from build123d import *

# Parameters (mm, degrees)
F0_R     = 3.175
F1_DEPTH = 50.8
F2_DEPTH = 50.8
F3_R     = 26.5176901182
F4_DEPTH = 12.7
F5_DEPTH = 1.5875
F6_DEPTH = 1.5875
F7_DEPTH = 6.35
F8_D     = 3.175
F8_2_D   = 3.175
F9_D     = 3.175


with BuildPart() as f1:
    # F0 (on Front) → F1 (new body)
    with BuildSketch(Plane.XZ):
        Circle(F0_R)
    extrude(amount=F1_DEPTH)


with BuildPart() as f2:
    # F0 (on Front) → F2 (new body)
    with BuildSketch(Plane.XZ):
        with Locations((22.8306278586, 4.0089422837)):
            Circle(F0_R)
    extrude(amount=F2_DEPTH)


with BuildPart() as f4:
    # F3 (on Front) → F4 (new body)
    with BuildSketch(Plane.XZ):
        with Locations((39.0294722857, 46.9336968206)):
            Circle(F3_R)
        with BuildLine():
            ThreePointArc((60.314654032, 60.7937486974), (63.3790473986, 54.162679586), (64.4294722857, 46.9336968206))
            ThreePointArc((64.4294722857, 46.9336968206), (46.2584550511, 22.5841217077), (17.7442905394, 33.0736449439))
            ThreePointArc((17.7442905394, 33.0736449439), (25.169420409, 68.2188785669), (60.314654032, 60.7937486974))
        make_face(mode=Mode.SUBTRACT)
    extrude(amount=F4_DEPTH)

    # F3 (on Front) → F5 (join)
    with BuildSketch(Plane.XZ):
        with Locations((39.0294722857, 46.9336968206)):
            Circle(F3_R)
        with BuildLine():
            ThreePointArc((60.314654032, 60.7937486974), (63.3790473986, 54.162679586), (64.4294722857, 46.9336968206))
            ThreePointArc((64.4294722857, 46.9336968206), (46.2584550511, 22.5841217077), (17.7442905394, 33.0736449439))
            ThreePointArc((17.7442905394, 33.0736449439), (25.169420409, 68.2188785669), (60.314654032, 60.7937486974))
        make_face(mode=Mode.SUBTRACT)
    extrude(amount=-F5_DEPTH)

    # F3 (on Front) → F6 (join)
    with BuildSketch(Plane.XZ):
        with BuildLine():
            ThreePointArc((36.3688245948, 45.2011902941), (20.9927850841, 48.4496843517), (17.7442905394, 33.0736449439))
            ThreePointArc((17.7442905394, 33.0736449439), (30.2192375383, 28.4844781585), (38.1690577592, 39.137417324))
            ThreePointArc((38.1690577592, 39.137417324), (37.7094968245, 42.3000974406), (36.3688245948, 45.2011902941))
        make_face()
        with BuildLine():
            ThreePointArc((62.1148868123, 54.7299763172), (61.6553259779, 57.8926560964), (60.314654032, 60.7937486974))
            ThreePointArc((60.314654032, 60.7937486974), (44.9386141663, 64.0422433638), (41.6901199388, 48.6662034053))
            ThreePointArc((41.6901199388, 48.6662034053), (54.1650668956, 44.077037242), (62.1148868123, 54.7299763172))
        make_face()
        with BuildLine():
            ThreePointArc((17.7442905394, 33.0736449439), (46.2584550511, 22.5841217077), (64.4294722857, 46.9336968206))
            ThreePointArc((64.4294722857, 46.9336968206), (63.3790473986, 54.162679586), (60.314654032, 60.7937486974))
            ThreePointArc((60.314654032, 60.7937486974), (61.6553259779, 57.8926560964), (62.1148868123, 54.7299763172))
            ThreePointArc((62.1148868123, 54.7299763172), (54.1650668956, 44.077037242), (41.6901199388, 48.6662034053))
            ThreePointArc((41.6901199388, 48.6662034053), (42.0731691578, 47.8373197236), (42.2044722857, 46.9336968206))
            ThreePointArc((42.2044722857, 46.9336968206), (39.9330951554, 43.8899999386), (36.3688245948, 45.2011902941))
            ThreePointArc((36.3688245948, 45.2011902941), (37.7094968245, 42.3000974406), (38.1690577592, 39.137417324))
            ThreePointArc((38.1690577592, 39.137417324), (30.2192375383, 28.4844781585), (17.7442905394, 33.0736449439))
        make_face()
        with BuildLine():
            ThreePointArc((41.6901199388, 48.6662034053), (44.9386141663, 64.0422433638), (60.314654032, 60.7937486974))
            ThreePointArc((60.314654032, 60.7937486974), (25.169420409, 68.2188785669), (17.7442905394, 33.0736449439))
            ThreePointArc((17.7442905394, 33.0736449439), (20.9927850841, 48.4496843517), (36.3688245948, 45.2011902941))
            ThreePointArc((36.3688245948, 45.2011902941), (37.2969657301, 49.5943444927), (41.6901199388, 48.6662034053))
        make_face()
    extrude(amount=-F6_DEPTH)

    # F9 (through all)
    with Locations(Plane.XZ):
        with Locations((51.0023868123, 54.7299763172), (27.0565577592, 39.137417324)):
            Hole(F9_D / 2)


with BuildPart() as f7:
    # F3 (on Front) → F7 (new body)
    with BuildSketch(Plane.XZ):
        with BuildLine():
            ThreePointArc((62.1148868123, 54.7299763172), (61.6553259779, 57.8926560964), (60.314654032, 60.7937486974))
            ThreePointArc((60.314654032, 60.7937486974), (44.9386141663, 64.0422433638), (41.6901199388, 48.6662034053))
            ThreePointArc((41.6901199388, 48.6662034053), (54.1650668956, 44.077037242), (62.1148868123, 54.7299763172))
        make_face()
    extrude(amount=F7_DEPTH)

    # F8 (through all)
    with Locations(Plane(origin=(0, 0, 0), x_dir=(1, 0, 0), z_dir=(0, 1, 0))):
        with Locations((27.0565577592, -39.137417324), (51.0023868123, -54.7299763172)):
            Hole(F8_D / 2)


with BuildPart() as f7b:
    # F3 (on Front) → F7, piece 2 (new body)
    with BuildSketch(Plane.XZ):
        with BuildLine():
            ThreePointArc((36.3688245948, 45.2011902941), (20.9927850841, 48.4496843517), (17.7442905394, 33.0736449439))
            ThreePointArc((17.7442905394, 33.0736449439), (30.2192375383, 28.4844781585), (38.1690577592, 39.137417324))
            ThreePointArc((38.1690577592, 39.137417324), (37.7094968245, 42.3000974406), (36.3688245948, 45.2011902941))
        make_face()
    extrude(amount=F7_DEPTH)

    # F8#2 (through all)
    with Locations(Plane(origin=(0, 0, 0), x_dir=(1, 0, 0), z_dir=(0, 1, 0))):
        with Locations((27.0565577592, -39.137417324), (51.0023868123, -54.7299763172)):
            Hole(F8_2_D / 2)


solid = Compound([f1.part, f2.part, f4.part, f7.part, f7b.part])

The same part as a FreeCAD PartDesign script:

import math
import FreeCAD as App
import Part
import Sketcher

V = App.Vector
Q = App.Units.Quantity

doc = App.newDocument("Part")
body = doc.addObject("PartDesign::Body", "Body")

# Sketch on XZ plane
sketch1 = doc.addObject("Sketcher::SketchObject", "Sketch")
body.addObject(sketch1)
sketch1.AttachmentSupport = (doc.XZ_Plane, [""])
sketch1.MapMode = "FlatFace"
sketch1.addGeometry(Part.Circle(V(0, 0, 0), V(0, 0, 1), 3.2), False)
sketch1.addConstraint(Sketcher.Constraint("Coincident", 0, 3, -1, 1))
sketch1.addConstraint(Sketcher.Constraint("Diameter", 0, Q("0.25 in")))
pad1 = doc.addObject("PartDesign::Pad", "Pad")
body.addObject(pad1)
pad1.Profile = sketch1
pad1.Length = Q("2 in")
body2 = doc.addObject("PartDesign::Body", "Body001")

# Sketch on XZ plane
sketch2 = doc.addObject("Sketcher::SketchObject", "Sketch001")
body2.addObject(sketch2)
sketch2.AttachmentSupport = (doc.getObject("XZ_Plane001"), [""])
sketch2.MapMode = "FlatFace"
sketch2.addGeometry(Part.Circle(V(22.8, 4, 0), V(0, 0, 1), 3.2), False)
sketch2.addConstraint(Sketcher.Constraint("Diameter", 0, Q("0.25 in")))
sketch2.addConstraint(Sketcher.Constraint("DistanceX", -1, 1, 0, 3, Q("22.830628 mm")))
sketch2.addConstraint(Sketcher.Constraint("DistanceY", -1, 1, 0, 3, Q("4.008942 mm")))
pad2 = doc.addObject("PartDesign::Pad", "Pad001")
body2.addObject(pad2)
pad2.Profile = sketch2
pad2.Length = Q("2 in")
body3 = doc.addObject("PartDesign::Body", "Body002")

# Sketch on XZ plane
sketch3 = doc.addObject("Sketcher::SketchObject", "Sketch002")
body3.addObject(sketch3)
sketch3.AttachmentSupport = (doc.getObject("XZ_Plane002"), [""])
sketch3.MapMode = "FlatFace"
sketch3.addGeometry(Part.Circle(V(39, 47, 0), V(0, 0, 1), 27), False)
sketch3.addGeometry(Part.ArcOfCircle(Part.Circle(V(39, 47, 0), V(0, 0, 1), 25), math.radians(33), math.radians(213)), False)
sketch3.addGeometry(Part.ArcOfCircle(Part.Circle(V(39, 47, 0), V(0, 0, 1), 25), math.radians(0), math.radians(33)), False)
sketch3.addGeometry(Part.ArcOfCircle(Part.Circle(V(39, 47, 0), V(0, 0, 1), 25), math.radians(-147), math.radians(0)), False)
sketch3.addConstraint(Sketcher.Constraint("Tangent", 1, 1, 2, 2))
sketch3.addConstraint(Sketcher.Constraint("Tangent", 2, 1, 3, 2))
sketch3.addConstraint(Sketcher.Constraint("Tangent", 3, 1, 1, 2))
sketch3.addConstraint(Sketcher.Constraint("Coincident", 1, 3, 0, 3))
sketch3.addConstraint(Sketcher.Constraint("Horizontal", 3, 3, 2, 1))
sketch3.addConstraint(Sketcher.Constraint("Radius", 1, Q("1 in")))
sketch3.addConstraint(Sketcher.Constraint("Diameter", 0, Q("53.03538 mm")))
sketch3.addConstraint(Sketcher.Constraint("DistanceY", -1, 1, 1, 1, Q("60.793749 mm")))
sketch3.addConstraint(Sketcher.Constraint("DistanceX", -1, 1, 3, 1, Q("17.744291 mm")))
sketch3.addConstraint(Sketcher.Constraint("DistanceX", 0, 3, 1, 1, Q("21.285182 mm")))
sketch3.addConstraint(Sketcher.Constraint("DistanceX", 3, 1, 0, 3, Q("21.285182 mm")))
pad3 = doc.addObject("PartDesign::Pad", "Pad002")
body3.addObject(pad3)
pad3.Profile = sketch3
pad3.Length = Q("0.5 in")

# Sketch on XZ plane
sketch4 = doc.addObject("Sketcher::SketchObject", "Sketch003")
body3.addObject(sketch4)
sketch4.AttachmentSupport = (doc.getObject("XZ_Plane002"), [""])
sketch4.MapMode = "FlatFace"
sketch4.addGeometry(Part.Circle(V(39, 47, 0), V(0, 0, 1), 27), False)
sketch4.addGeometry(Part.ArcOfCircle(Part.Circle(V(39, 47, 0), V(0, 0, 1), 25), math.radians(33), math.radians(213)), False)
sketch4.addGeometry(Part.ArcOfCircle(Part.Circle(V(39, 47, 0), V(0, 0, 1), 25), math.radians(0), math.radians(33)), False)
sketch4.addGeometry(Part.ArcOfCircle(Part.Circle(V(39, 47, 0), V(0, 0, 1), 25), math.radians(-147), math.radians(0)), False)
sketch4.addConstraint(Sketcher.Constraint("Tangent", 1, 1, 2, 2))
sketch4.addConstraint(Sketcher.Constraint("Tangent", 2, 1, 3, 2))
sketch4.addConstraint(Sketcher.Constraint("Tangent", 3, 1, 1, 2))
sketch4.addConstraint(Sketcher.Constraint("Coincident", 1, 3, 0, 3))
sketch4.addConstraint(Sketcher.Constraint("Horizontal", 3, 3, 2, 1))
sketch4.addConstraint(Sketcher.Constraint("Radius", 1, Q("1 in")))
sketch4.addConstraint(Sketcher.Constraint("Diameter", 0, Q("53.03538 mm")))
sketch4.addConstraint(Sketcher.Constraint("DistanceY", -1, 1, 1, 1, Q("60.793749 mm")))
sketch4.addConstraint(Sketcher.Constraint("DistanceX", -1, 1, 3, 1, Q("17.744291 mm")))
sketch4.addConstraint(Sketcher.Constraint("DistanceX", 0, 3, 1, 1, Q("21.285182 mm")))
sketch4.addConstraint(Sketcher.Constraint("DistanceX", 3, 1, 0, 3, Q("21.285182 mm")))
pad4 = doc.addObject("PartDesign::Pad", "Pad003")
body3.addObject(pad4)
pad4.Profile = sketch4
pad4.Length = Q("0.0625 in")
pad4.Reversed = True

# Sketch on XZ plane
sketch5 = doc.addObject("Sketcher::SketchObject", "Sketch004")
body3.addObject(sketch5)
sketch5.AttachmentSupport = (doc.getObject("XZ_Plane002"), [""])
sketch5.MapMode = "FlatFace"
sketch5.addGeometry(Part.ArcOfCircle(Part.Circle(V(39, 46.9, 0), V(0, 0, 1), 25.4), math.radians(-147), math.radians(0)), False)
sketch5.addGeometry(Part.ArcOfCircle(Part.Circle(V(39, 46.9, 0), V(0, 0, 1), 25.4), math.radians(0), math.radians(33)), False)
sketch5.addGeometry(Part.ArcOfCircle(Part.Circle(V(39, 46.9, 0), V(0, 0, 1), 25.4), math.radians(33), math.radians(213)), False)
sketch5.addGeometry(Part.ArcOfCircle(Part.Circle(V(39, 46.9, 0), V(0, 0, 1), 3.2), math.radians(0), math.radians(33)), False)
sketch5.addGeometry(Part.ArcOfCircle(Part.Circle(V(39, 46.9, 0), V(0, 0, 1), 3.2), math.radians(-147), math.radians(0)), False)
sketch5.addGeometry(Part.ArcOfCircle(Part.Circle(V(39, 46.9, 0), V(0, 0, 1), 3.2), math.radians(33), math.radians(213)), False)
sketch5.addConstraint(Sketcher.Constraint("Tangent", 0, 2, 1, 1))
sketch5.addConstraint(Sketcher.Constraint("Tangent", 1, 2, 2, 1))
sketch5.addConstraint(Sketcher.Constraint("Tangent", 2, 2, 0, 1))
sketch5.addConstraint(Sketcher.Constraint("Tangent", 3, 1, 4, 2))
sketch5.addConstraint(Sketcher.Constraint("Tangent", 4, 1, 5, 2))
sketch5.addConstraint(Sketcher.Constraint("Tangent", 5, 1, 3, 2))
sketch5.addConstraint(Sketcher.Constraint("Coincident", 3, 3, 0, 3))
sketch5.addConstraint(Sketcher.Constraint("Horizontal", 5, 3, 0, 2))
sketch5.addConstraint(Sketcher.Constraint("Horizontal", 0, 2, 3, 1))
sketch5.addConstraint(Sketcher.Constraint("Radius", 0, Q("1 in")))
sketch5.addConstraint(Sketcher.Constraint("Radius", 3, Q("0.125 in")))
sketch5.addConstraint(Sketcher.Constraint("DistanceY", -1, 1, 1, 2, Q("60.793749 mm")))
sketch5.addConstraint(Sketcher.Constraint("DistanceX", -1, 1, 2, 2, Q("17.744291 mm")))
sketch5.addConstraint(Sketcher.Constraint("DistanceY", -1, 1, 4, 1, Q("45.20119 mm")))
sketch5.addConstraint(Sketcher.Constraint("DistanceX", -1, 1, 5, 1, Q("41.69012 mm")))
sketch5.addConstraint(Sketcher.Constraint("DistanceX", 1, 2, 0, 2, Q("4.114818 mm")))
sketch5.addConstraint(Sketcher.Constraint("DistanceX", 2, 2, 0, 3, Q("21.285182 mm")))
pad5 = doc.addObject("PartDesign::Pad", "Pad004")
body3.addObject(pad5)
pad5.Profile = sketch5
pad5.Length = Q("0.0625 in")
pad5.Reversed = True

# Sketch on XZ plane
sketch6 = doc.addObject("Sketcher::SketchObject", "Sketch005")
body3.addObject(sketch6)
sketch6.AttachmentSupport = (doc.getObject("XZ_Plane002"), [""])
sketch6.MapMode = "FlatFace"
sketch6.addGeometry(Part.Circle(V(51, 54.7, 0), V(0, 0, 1), 1.6), False)
sketch6.addGeometry(Part.Circle(V(27.1, 39.1, 0), V(0, 0, 1), 1.6), False)
sketch6.addConstraint(Sketcher.Constraint("Equal", 0, 1))
sketch6.addConstraint(Sketcher.Constraint("Diameter", 0, Q("0.125 in")))
sketch6.addConstraint(Sketcher.Constraint("DistanceX", 1, 3, 0, 3, Q("23.945829 mm")))
sketch6.addConstraint(Sketcher.Constraint("DistanceY", 1, 3, 0, 3, Q("15.592559 mm")))
sketch6.addConstraint(Sketcher.Constraint("DistanceX", -1, 1, 0, 3, Q("51.002387 mm")))
sketch6.addConstraint(Sketcher.Constraint("DistanceY", -1, 1, 0, 3, Q("54.729976 mm")))
doc.recompute()
hole = doc.addObject("PartDesign::Hole", "Hole")
body3.addObject(hole)
hole.Profile = sketch6
hole.ThreadType = "None"
hole.Diameter = Q("0.125 in")
hole.DepthType = "ThroughAll"
body4 = doc.addObject("PartDesign::Body", "Body003")

# Sketch on XZ plane
sketch7 = doc.addObject("Sketcher::SketchObject", "Sketch006")
body4.addObject(sketch7)
sketch7.AttachmentSupport = (doc.getObject("XZ_Plane003"), [""])
sketch7.MapMode = "FlatFace"
sketch7.addGeometry(Part.ArcOfCircle(Part.Circle(V(51, 55, 0), V(0, 0, 1), 11), math.radians(0), math.radians(33)), False)
sketch7.addGeometry(Part.ArcOfCircle(Part.Circle(V(51, 55, 0), V(0, 0, 1), 11), math.radians(33), math.radians(213)), False)
sketch7.addGeometry(Part.ArcOfCircle(Part.Circle(V(51, 55, 0), V(0, 0, 1), 11), math.radians(-147), math.radians(0)), False)
sketch7.addConstraint(Sketcher.Constraint("Tangent", 0, 2, 1, 1))
sketch7.addConstraint(Sketcher.Constraint("Tangent", 1, 2, 2, 1))
sketch7.addConstraint(Sketcher.Constraint("Tangent", 2, 2, 0, 1))
sketch7.addConstraint(Sketcher.Constraint("Horizontal", 1, 3, 2, 2))
sketch7.addConstraint(Sketcher.Constraint("Radius", 0, Q("0.4375 in")))
sketch7.addConstraint(Sketcher.Constraint("DistanceY", -1, 1, 0, 2, Q("60.793749 mm")))
sketch7.addConstraint(Sketcher.Constraint("DistanceX", -1, 1, 1, 2, Q("41.69012 mm")))
sketch7.addConstraint(Sketcher.Constraint("DistanceX", -1, 1, 0, 3, Q("51.002387 mm")))
sketch7.addConstraint(Sketcher.Constraint("DistanceY", -1, 1, 0, 3, Q("54.729976 mm")))
pad6 = doc.addObject("PartDesign::Pad", "Pad005")
body4.addObject(pad6)
pad6.Profile = sketch7
pad6.Length = Q("0.25 in")

# Sketch on XZ plane
sketch8 = doc.addObject("Sketcher::SketchObject", "Sketch007")
body4.addObject(sketch8)
sketch8.AttachmentSupport = (doc.getObject("XZ_Plane003"), [""])
sketch8.MapMode = "FlatFace"
sketch8.addGeometry(Part.Circle(V(27.1, 39.1, 0), V(0, 0, 1), 1.6), False)
sketch8.addGeometry(Part.Circle(V(51, 54.7, 0), V(0, 0, 1), 1.6), False)
sketch8.addConstraint(Sketcher.Constraint("Equal", 0, 1))
sketch8.addConstraint(Sketcher.Constraint("Diameter", 0, Q("0.125 in")))
sketch8.addConstraint(Sketcher.Constraint("DistanceX", 0, 3, 1, 3, Q("23.945829 mm")))
sketch8.addConstraint(Sketcher.Constraint("DistanceY", 0, 3, 1, 3, Q("15.592559 mm")))
sketch8.addConstraint(Sketcher.Constraint("DistanceX", -1, 1, 0, 3, Q("27.056558 mm")))
sketch8.addConstraint(Sketcher.Constraint("DistanceY", -1, 1, 0, 3, Q("39.137417 mm")))
doc.recompute()
hole2 = doc.addObject("PartDesign::Hole", "Hole001")
body4.addObject(hole2)
hole2.Profile = sketch8
hole2.ThreadType = "None"
hole2.Diameter = Q("0.125 in")
hole2.DepthType = "ThroughAll"
hole2.Reversed = True
body5 = doc.addObject("PartDesign::Body", "Body004")

# Sketch on XZ plane
sketch9 = doc.addObject("Sketcher::SketchObject", "Sketch008")
body5.addObject(sketch9)
sketch9.AttachmentSupport = (doc.getObject("XZ_Plane004"), [""])
sketch9.MapMode = "FlatFace"
sketch9.addGeometry(Part.ArcOfCircle(Part.Circle(V(27, 39, 0), V(0, 0, 1), 11), math.radians(33), math.radians(213)), False)
sketch9.addGeometry(Part.ArcOfCircle(Part.Circle(V(27, 39, 0), V(0, 0, 1), 11), math.radians(-147), math.radians(0)), False)
sketch9.addGeometry(Part.ArcOfCircle(Part.Circle(V(27, 39, 0), V(0, 0, 1), 11), math.radians(0), math.radians(33)), False)
sketch9.addConstraint(Sketcher.Constraint("Tangent", 0, 2, 1, 1))
sketch9.addConstraint(Sketcher.Constraint("Tangent", 1, 2, 2, 1))
sketch9.addConstraint(Sketcher.Constraint("Tangent", 2, 2, 0, 1))
sketch9.addConstraint(Sketcher.Constraint("Horizontal", 2, 3, 1, 2))
sketch9.addConstraint(Sketcher.Constraint("Radius", 0, Q("0.4375 in")))
sketch9.addConstraint(Sketcher.Constraint("DistanceX", -1, 1, 0, 2, Q("17.744291 mm")))
sketch9.addConstraint(Sketcher.Constraint("DistanceY", -1, 1, 2, 2, Q("45.20119 mm")))
sketch9.addConstraint(Sketcher.Constraint("DistanceX", -1, 1, 0, 3, Q("27.056558 mm")))
sketch9.addConstraint(Sketcher.Constraint("DistanceY", -1, 1, 0, 3, Q("39.137417 mm")))
pad7 = doc.addObject("PartDesign::Pad", "Pad006")
body5.addObject(pad7)
pad7.Profile = sketch9
pad7.Length = Q("0.25 in")

# Sketch on XZ plane
sketch10 = doc.addObject("Sketcher::SketchObject", "Sketch009")
body5.addObject(sketch10)
sketch10.AttachmentSupport = (doc.getObject("XZ_Plane004"), [""])
sketch10.MapMode = "FlatFace"
sketch10.addGeometry(Part.Circle(V(27.1, 39.1, 0), V(0, 0, 1), 1.6), False)
sketch10.addGeometry(Part.Circle(V(51, 54.7, 0), V(0, 0, 1), 1.6), False)
sketch10.addConstraint(Sketcher.Constraint("Equal", 0, 1))
sketch10.addConstraint(Sketcher.Constraint("Diameter", 0, Q("0.125 in")))
sketch10.addConstraint(Sketcher.Constraint("DistanceX", 0, 3, 1, 3, Q("23.945829 mm")))
sketch10.addConstraint(Sketcher.Constraint("DistanceY", 0, 3, 1, 3, Q("15.592559 mm")))
sketch10.addConstraint(Sketcher.Constraint("DistanceX", -1, 1, 0, 3, Q("27.056558 mm")))
sketch10.addConstraint(Sketcher.Constraint("DistanceY", -1, 1, 0, 3, Q("39.137417 mm")))
doc.recompute()
hole3 = doc.addObject("PartDesign::Hole", "Hole002")
body5.addObject(hole3)
hole3.Profile = sketch10
hole3.ThreadType = "None"
hole3.Diameter = Q("0.125 in")
hole3.DepthType = "ThroughAll"
hole3.Reversed = True

doc.recompute()
